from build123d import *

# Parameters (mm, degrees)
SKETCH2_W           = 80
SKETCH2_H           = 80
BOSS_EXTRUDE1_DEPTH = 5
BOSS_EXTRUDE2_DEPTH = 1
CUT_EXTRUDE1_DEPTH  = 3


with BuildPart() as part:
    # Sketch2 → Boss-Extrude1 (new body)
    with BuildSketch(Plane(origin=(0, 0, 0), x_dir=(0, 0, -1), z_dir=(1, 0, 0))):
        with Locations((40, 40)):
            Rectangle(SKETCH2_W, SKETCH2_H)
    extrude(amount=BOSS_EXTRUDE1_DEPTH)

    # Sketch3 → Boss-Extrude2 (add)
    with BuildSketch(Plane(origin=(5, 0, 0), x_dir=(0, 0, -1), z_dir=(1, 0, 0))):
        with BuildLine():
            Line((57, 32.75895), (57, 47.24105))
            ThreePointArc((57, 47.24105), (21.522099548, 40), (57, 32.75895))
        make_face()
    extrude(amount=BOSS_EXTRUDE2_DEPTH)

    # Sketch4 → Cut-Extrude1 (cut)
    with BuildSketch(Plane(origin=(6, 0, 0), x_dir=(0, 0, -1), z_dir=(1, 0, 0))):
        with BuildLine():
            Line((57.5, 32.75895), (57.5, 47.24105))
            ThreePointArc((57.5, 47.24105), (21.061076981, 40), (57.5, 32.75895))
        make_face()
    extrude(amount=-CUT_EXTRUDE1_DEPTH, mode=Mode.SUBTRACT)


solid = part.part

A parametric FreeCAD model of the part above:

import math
import FreeCAD as App
import Part
import Sketcher
Q = App.Units.Quantity

doc = App.newDocument("Part")
body = doc.addObject("PartDesign::Body", "Body")

sketch1 = body.newObject("Sketcher::SketchObject", "Sketch")
sketch1.AttachmentSupport = (doc.getObject("YZ_Plane"), [""])
sketch1.MapMode = "FlatFace"
sketch1.addGeometry(Part.LineSegment(App.Vector(80, 0, 0), App.Vector(0, 0, 0)), False)
sketch1.addGeometry(Part.LineSegment(App.Vector(0, 0, 0), App.Vector(0, -80, 0)), False)
sketch1.addGeometry(Part.LineSegment(App.Vector(0, -80, 0), App.Vector(80, -80, 0)), False)
sketch1.addGeometry(Part.LineSegment(App.Vector(80, -80, 0), App.Vector(80, 0, 0)), False)
sketch1.addConstraint(Sketcher.Constraint("Coincident", 0, 2, 1, 1))
sketch1.addConstraint(Sketcher.Constraint("Coincident", 1, 2, 2, 1))
sketch1.addConstraint(Sketcher.Constraint("Coincident", 2, 2, 3, 1))
sketch1.addConstraint(Sketcher.Constraint("Coincident", 3, 2, 0, 1))
sketch1.addConstraint(Sketcher.Constraint("Horizontal", 0))
sketch1.addConstraint(Sketcher.Constraint("Vertical", 1))
sketch1.addConstraint(Sketcher.Constraint("Horizontal", 2))
sketch1.addConstraint(Sketcher.Constraint("Vertical", 3))
sketch1.addConstraint(Sketcher.Constraint("Coincident", 0, 2, -1, 1))
sketch1.addConstraint(Sketcher.Constraint("Equal", 2, 1))
sketch1.addConstraint(Sketcher.Constraint("DistanceX", 0, 2, 0, 1, Q("80 mm")))
pad1 = body.newObject("PartDesign::Pad", "Pad")
pad1.Profile = sketch1
pad1.Length = 5

sketch2 = body.newObject("Sketcher::SketchObject", "Sketch001")
sketch2.AttachmentSupport = (doc.getObject("YZ_Plane"), [""])
sketch2.MapMode = "FlatFace"
sketch2.AttachmentOffset = App.Placement(App.Vector(0, 0, 5), App.Rotation())
sketch2.addGeometry(Part.LineSegment(App.Vector(33, -57, 0), App.Vector(47, -57, 0)), False)
sketch2.addGeometry(Part.ArcOfCircle(Part.Circle(App.Vector(40, -40, 0), App.Vector(0, 0, 1), 18), math.radians(-67), math.radians(247)), False)
sketch2.addConstraint(Sketcher.Constraint("Coincident", 0, 1, 1, 2))
sketch2.addConstraint(Sketcher.Constraint("Coincident", 1, 1, 0, 2))
sketch2.addConstraint(Sketcher.Constraint("Horizontal", 0))
sketch2.addConstraint(Sketcher.Constraint("DistanceX", -1, 1, 1, 3, Q("40 mm")))
sketch2.addConstraint(Sketcher.Constraint("DistanceY", 1, 3, -1, 1, Q("40 mm")))
sketch2.addConstraint(Sketcher.Constraint("DistanceY", 0, 1, -1, 1, Q("57 mm")))
sketch2.addConstraint(Sketcher.Constraint("Radius", 1, Q("18.4779 mm")))
pad2 = body.newObject("PartDesign::Pad", "Pad001")
pad2.Profile = sketch2
pad2.Length = 1

sketch3 = body.newObject("Sketcher::SketchObject", "Sketch002")
sketch3.AttachmentSupport = (doc.getObject("YZ_Plane"), [""])
sketch3.MapMode = "FlatFace"
sketch3.AttachmentOffset = App.Placement(App.Vector(0, 0, 6), App.Rotation())
sketch3.addGeometry(Part.LineSegment(App.Vector(33, -58, 0), App.Vector(47, -58, 0)), False)
sketch3.addGeometry(Part.ArcOfCircle(Part.Circle(App.Vector(40, -40, 0), App.Vector(0, 0, 1), 19), math.radians(-68), math.radians(248)), False)
sketch3.addConstraint(Sketcher.Constraint("Coincident", 0, 1, 1, 2))
sketch3.addConstraint(Sketcher.Constraint("Coincident", 1, 1, 0, 2))
sketch3.addConstraint(Sketcher.Constraint("Horizontal", 0))
sketch3.addConstraint(Sketcher.Constraint("DistanceX", -1, 1, 1, 3, Q("40 mm")))
sketch3.addConstraint(Sketcher.Constraint("DistanceY", 1, 3, -1, 1, Q("40 mm")))
sketch3.addConstraint(Sketcher.Constraint("DistanceY", 0, 1, -1, 1, Q("57.5 mm")))
sketch3.addConstraint(Sketcher.Constraint("DistanceX", 0, 1, 0, 2, Q("14.4821 mm")))
pocket1 = body.newObject("PartDesign::Pocket", "Pocket")
pocket1.Profile = sketch3
pocket1.Length = 3

doc.recompute()
